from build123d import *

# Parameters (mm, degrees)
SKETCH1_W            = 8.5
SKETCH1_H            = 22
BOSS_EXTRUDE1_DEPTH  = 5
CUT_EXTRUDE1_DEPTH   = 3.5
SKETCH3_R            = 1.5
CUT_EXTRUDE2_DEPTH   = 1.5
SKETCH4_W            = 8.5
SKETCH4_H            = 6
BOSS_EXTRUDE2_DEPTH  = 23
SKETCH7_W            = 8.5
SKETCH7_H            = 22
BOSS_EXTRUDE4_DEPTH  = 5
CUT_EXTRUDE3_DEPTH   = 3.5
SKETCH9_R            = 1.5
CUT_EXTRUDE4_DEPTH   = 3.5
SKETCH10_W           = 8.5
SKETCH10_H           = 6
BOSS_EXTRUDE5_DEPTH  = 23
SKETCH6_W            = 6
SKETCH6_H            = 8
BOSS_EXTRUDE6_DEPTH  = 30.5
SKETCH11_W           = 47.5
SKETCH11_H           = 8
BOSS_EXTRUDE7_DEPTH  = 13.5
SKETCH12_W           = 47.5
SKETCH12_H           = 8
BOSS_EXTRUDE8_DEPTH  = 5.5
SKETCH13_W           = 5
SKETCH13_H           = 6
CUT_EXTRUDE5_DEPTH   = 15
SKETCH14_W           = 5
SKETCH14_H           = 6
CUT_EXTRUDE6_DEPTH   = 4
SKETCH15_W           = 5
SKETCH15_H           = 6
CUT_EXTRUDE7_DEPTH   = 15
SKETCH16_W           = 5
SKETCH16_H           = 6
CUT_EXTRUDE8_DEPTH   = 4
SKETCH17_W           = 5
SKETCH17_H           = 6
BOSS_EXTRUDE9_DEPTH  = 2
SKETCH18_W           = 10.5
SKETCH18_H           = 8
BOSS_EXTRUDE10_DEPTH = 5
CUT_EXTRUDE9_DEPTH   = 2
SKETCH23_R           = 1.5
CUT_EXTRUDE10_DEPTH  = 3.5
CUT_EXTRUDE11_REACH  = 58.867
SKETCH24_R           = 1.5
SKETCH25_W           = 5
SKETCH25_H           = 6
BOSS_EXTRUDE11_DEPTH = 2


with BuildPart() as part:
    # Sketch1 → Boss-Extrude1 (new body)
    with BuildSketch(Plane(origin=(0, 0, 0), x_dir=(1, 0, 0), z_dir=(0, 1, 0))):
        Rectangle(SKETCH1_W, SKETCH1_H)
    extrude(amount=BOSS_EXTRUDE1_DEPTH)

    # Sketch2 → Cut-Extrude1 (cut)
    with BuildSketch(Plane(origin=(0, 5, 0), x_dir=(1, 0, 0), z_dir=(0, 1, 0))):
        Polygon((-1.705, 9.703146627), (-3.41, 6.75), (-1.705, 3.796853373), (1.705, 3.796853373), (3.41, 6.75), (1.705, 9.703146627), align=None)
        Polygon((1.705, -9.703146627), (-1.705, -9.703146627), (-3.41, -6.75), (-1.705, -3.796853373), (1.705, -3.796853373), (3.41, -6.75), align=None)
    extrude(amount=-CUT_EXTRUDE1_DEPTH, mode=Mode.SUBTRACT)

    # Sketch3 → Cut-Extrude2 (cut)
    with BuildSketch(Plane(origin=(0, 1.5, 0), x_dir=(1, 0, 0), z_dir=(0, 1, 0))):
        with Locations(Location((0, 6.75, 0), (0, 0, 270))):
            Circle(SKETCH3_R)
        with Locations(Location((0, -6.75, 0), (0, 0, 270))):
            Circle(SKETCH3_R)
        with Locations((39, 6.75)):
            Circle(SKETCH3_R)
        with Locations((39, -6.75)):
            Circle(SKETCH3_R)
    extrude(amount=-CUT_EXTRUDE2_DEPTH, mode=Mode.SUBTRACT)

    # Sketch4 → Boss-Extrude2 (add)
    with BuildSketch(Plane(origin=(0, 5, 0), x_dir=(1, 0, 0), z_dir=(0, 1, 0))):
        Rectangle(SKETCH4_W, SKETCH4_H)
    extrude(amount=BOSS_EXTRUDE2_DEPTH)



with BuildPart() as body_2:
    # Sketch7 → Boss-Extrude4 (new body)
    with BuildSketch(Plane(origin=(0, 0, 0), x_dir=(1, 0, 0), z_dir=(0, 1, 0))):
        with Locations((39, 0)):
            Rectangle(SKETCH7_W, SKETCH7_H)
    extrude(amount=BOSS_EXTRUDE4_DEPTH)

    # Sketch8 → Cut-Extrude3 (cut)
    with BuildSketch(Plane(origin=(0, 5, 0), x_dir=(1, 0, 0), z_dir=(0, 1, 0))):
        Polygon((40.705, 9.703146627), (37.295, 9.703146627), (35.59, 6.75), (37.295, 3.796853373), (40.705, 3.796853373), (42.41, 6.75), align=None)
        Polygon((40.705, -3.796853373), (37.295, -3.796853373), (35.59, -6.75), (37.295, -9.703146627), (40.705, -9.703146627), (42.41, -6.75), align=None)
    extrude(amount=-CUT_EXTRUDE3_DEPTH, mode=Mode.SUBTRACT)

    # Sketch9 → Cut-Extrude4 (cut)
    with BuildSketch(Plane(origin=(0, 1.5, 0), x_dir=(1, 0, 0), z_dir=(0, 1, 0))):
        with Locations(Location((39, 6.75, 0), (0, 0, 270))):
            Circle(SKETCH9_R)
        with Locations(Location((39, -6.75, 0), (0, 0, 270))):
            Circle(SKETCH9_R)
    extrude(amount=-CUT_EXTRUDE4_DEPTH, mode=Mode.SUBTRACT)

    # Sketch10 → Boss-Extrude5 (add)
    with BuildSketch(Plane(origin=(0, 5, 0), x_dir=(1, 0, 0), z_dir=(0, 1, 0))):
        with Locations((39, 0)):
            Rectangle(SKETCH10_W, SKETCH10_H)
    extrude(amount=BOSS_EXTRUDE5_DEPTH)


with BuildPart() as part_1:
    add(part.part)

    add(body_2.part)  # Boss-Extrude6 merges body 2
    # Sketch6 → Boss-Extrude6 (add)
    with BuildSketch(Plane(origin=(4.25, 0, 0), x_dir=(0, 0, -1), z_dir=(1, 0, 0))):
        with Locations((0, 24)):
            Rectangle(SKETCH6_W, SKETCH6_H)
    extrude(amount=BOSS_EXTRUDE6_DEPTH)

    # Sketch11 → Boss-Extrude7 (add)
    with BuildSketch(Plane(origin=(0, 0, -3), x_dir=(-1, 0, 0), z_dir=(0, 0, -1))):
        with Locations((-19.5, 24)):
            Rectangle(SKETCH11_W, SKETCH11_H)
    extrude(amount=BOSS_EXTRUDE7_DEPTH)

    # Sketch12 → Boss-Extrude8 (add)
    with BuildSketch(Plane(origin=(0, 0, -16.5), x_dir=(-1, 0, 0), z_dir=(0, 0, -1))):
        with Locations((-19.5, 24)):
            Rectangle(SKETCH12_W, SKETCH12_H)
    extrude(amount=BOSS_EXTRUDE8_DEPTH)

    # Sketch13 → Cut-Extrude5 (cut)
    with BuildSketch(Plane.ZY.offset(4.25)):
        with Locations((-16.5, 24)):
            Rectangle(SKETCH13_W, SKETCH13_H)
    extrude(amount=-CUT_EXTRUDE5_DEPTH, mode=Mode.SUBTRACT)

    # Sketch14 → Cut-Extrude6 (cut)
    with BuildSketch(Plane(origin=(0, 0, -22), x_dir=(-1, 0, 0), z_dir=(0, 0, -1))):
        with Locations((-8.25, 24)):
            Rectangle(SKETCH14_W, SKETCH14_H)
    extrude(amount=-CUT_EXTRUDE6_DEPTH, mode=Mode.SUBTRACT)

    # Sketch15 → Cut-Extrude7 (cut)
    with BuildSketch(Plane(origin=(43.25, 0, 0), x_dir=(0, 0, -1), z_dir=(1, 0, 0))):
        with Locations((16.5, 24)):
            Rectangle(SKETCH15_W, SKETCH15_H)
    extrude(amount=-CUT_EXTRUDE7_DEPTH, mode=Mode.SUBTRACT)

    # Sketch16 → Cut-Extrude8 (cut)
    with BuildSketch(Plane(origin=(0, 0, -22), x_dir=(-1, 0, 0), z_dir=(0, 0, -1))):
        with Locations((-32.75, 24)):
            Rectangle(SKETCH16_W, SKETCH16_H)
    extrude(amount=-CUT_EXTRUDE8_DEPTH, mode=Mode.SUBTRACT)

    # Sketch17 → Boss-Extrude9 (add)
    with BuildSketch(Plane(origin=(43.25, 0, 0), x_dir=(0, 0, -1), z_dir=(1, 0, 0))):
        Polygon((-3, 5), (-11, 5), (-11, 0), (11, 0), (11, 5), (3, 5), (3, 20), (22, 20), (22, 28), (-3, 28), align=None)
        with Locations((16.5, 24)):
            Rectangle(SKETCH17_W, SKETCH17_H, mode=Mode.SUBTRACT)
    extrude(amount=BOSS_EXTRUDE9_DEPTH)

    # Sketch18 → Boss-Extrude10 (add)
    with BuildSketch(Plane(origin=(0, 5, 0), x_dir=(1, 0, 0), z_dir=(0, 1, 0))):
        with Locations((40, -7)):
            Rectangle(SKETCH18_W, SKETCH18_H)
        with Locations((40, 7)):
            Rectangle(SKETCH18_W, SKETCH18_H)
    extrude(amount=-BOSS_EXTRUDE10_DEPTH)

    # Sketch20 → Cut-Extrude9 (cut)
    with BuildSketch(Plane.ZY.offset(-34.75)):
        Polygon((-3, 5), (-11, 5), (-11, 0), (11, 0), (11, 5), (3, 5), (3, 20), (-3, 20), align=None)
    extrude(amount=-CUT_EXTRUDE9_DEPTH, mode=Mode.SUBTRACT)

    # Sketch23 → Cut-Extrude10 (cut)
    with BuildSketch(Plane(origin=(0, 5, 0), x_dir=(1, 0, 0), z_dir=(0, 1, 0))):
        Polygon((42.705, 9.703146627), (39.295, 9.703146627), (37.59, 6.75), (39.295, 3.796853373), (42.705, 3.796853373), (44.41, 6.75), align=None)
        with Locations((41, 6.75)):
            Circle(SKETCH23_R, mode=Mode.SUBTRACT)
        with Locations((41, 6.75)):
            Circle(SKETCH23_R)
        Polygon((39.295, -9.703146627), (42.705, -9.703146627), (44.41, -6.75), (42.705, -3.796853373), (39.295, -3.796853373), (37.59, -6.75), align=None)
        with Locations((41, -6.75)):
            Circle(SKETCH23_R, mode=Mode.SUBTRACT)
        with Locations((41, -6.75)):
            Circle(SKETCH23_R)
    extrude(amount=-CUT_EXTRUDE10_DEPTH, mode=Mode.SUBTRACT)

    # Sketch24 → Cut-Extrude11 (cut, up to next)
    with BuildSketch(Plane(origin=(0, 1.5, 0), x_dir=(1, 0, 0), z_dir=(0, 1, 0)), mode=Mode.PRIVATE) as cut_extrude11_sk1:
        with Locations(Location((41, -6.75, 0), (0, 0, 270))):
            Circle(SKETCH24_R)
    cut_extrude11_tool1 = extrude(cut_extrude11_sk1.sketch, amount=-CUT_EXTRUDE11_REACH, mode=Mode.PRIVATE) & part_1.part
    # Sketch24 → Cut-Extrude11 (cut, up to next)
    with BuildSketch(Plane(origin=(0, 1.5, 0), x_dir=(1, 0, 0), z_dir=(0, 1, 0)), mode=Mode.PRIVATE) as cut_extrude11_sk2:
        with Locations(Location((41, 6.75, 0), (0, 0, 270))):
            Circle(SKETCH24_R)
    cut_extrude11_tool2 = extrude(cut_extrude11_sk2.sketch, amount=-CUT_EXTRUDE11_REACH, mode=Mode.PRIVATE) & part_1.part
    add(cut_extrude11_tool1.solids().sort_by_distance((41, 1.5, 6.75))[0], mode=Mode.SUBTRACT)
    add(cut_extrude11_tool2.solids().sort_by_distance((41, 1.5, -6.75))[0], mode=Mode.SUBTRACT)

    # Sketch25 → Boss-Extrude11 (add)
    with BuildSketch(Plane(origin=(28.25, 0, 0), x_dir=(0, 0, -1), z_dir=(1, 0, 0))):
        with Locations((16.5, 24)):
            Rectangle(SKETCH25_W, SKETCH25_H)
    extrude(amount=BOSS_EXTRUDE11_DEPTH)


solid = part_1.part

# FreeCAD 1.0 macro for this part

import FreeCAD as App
import Part
import Sketcher

V = App.Vector
Q = App.Units.Quantity

doc = App.newDocument("Part")
body = doc.addObject("PartDesign::Body", "Body")

sketch1 = body.newObject("Sketcher::SketchObject", "Sketch")
sketch1.AttachmentSupport = (doc.getObject("XZ_Plane"), [""])
sketch1.MapMode = "FlatFace"
sketch1.addGeometry([
    Part.LineSegment(V(-4.25, -11, 0), V(-4.25, 11, 0)),
    Part.LineSegment(V(-4.25, 11, 0), V(4.25, 11, 0)),
    Part.LineSegment(V(4.25, 11, 0), V(4.25, -11, 0)),
    Part.LineSegment(V(4.25, -11, 0), V(-4.25, -11, 0)),
], False)
sketch1.addConstraint([
    Sketcher.Constraint("Coincident", 0, 2, 1, 1),
    Sketcher.Constraint("Coincident", 1, 2, 2, 1),
    Sketcher.Constraint("Coincident", 2, 2, 3, 1),
    Sketcher.Constraint("Coincident", 3, 2, 0, 1),
    Sketcher.Constraint("Vertical", 0),
    Sketcher.Constraint("Horizontal", 1),
    Sketcher.Constraint("Vertical", 2),
    Sketcher.Constraint("Horizontal", 3),
    Sketcher.Constraint("Symmetric", 0, 2, 2, 2, -1, 1),
    Sketcher.Constraint("DistanceY", 0, 1, 0, 2, Q("22 mm")),
    Sketcher.Constraint("DistanceX", 1, 1, 1, 2, Q("8.5 mm")),
])
pad1 = body.newObject("PartDesign::Pad", "Pad")
pad1.Profile = sketch1
pad1.Length = 5
pad1.Reversed = True

sketch2 = body.newObject("Sketcher::SketchObject", "Sketch001")
sketch2.AttachmentSupport = (doc.getObject("XZ_Plane"), [""])
sketch2.MapMode = "FlatFace"
sketch2.AttachmentOffset = App.Placement(V(0, 0, -5), App.Rotation())
sketch2.addGeometry([
    Part.LineSegment(V(-1.705, -9.703147, 0), V(-3.41, -6.75, 0)),
    Part.LineSegment(V(-3.41, -6.75, 0), V(-1.705, -3.796853, 0)),
    Part.LineSegment(V(-1.705, -3.796853, 0), V(1.705, -3.796853, 0)),
    Part.LineSegment(V(1.705, -3.796853, 0), V(3.41, -6.75, 0)),
    Part.LineSegment(V(3.41, -6.75, 0), V(1.705, -9.703147, 0)),
    Part.LineSegment(V(1.705, -9.703147, 0), V(-1.705, -9.703147, 0)),
    Part.LineSegment(V(-1.705, 9.703147, 0), V(1.705, 9.703147, 0)),
    Part.LineSegment(V(1.705, 9.703147, 0), V(3.41, 6.75, 0)),
    Part.LineSegment(V(3.41, 6.75, 0), V(1.705, 3.796853, 0)),
    Part.LineSegment(V(1.705, 3.796853, 0), V(-1.705, 3.796853, 0)),
    Part.LineSegment(V(-1.705, 3.796853, 0), V(-3.41, 6.75, 0)),
    Part.LineSegment(V(-3.41, 6.75, 0), V(-1.705, 9.703147, 0)),
], False)
sketch2.addConstraint([
    Sketcher.Constraint("Coincident", 0, 2, 1, 1),
    Sketcher.Constraint("Coincident", 1, 2, 2, 1),
    Sketcher.Constraint("Coincident", 2, 2, 3, 1),
    Sketcher.Constraint("Coincident", 3, 2, 4, 1),
    Sketcher.Constraint("Coincident", 4, 2, 5, 1),
    Sketcher.Constraint("Coincident", 5, 2, 0, 1),
    Sketcher.Constraint("Coincident", 6, 2, 7, 1),
    Sketcher.Constraint("Coincident", 7, 2, 8, 1),
    Sketcher.Constraint("Coincident", 8, 2, 9, 1),
    Sketcher.Constraint("Coincident", 9, 2, 10, 1),
    Sketcher.Constraint("Coincident", 10, 2, 11, 1),
    Sketcher.Constraint("Coincident", 11, 2, 6, 1),
    Sketcher.Constraint("Horizontal", 2),
    Sketcher.Constraint("Horizontal", 5),
    Sketcher.Constraint("Horizontal", 6),
    Sketcher.Constraint("Horizontal", 9),
    Sketcher.Constraint("Symmetric", 5, 2, 6, 2, -1, 1),
    Sketcher.Constraint("Symmetric", 0, 2, 7, 2, -1, 1),
    Sketcher.Constraint("Symmetric", 1, 2, 8, 2, -1, 1),
    Sketcher.Constraint("Symmetric", 3, 2, 10, 2, -1, 1),
    Sketcher.Constraint("Symmetric", 0, 2, 3, 2, -2),
    Sketcher.Constraint("Parallel", 0, 3),
    Sketcher.Constraint("Parallel", 1, 4),
    Sketcher.Constraint("Parallel", 7, 10),
    Sketcher.Constraint("Parallel", 8, 11),
    Sketcher.Constraint("Vertical", 2, 2, 4, 2),
    Sketcher.Constraint("Vertical", 1, 2, 5, 2),
    Sketcher.Constraint("Angle", 0, Q("120 deg")),
    Sketcher.Constraint("DistanceX", 2, 1, 2, 2, Q("3.41 mm")),
    Sketcher.Constraint("DistanceY", 2, 2, 6, 2, Q("13.5 mm")),
    Sketcher.Constraint("Distance", 0, Q("3.41 mm")),
])
pocket1 = body.newObject("PartDesign::Pocket", "Pocket")
pocket1.Profile = sketch2
pocket1.Length = 3.5
pocket1.Reversed = True

sketch3 = body.newObject("Sketcher::SketchObject", "Sketch002")
sketch3.AttachmentSupport = (doc.getObject("XZ_Plane"), [""])
sketch3.MapMode = "FlatFace"
sketch3.AttachmentOffset = App.Placement(V(0, 0, -1.5), App.Rotation())
sketch3.addGeometry([
    Part.Circle(V(0, -6.75, 0), V(0, 0, 1), 1.5),
    Part.Circle(V(0, 6.75, 0), V(0, 0, 1), 1.5),
    Part.Circle(V(39, -6.75, 0), V(0, 0, 1), 1.5),
    Part.Circle(V(39, 6.75, 0), V(0, 0, 1), 1.5),
], False)
sketch3.addConstraint([
    Sketcher.Constraint("Equal", 0, 1),
    Sketcher.Constraint("Equal", 1, 2),
    Sketcher.Constraint("Equal", 2, 3),
    Sketcher.Constraint("Symmetric", 0, 3, 1, 3, -1, 1),
    Sketcher.Constraint("Symmetric", 2, 3, 3, 3, -1),
    Sketcher.Constraint("PointOnObject", 0, 3, -2),
    Sketcher.Constraint("Horizontal", 0, 3, 2, 3),
    Sketcher.Constraint("Diameter", 0, Q("3 mm")),
    Sketcher.Constraint("DistanceX", -1, 1, 2, 3, Q("39 mm")),
    Sketcher.Constraint("DistanceY", 0, 3, 1, 3, Q("13.5 mm")),
])
pocket2 = body.newObject("PartDesign::Pocket", "Pocket001")
pocket2.Profile = sketch3
pocket2.Length = 1.5
pocket2.Reversed = True

sketch4 = body.newObject("Sketcher::SketchObject", "Sketch003")
sketch4.AttachmentSupport = (doc.getObject("XZ_Plane"), [""])
sketch4.MapMode = "FlatFace"
sketch4.AttachmentOffset = App.Placement(V(0, 0, -5), App.Rotation())
sketch4.addGeometry([
    Part.LineSegment(V(-4.25, -3, 0), V(-4.25, 3, 0)),
    Part.LineSegment(V(-4.25, 3, 0), V(4.25, 3, 0)),
    Part.LineSegment(V(4.25, 3, 0), V(4.25, -3, 0)),
    Part.LineSegment(V(4.25, -3, 0), V(-4.25, -3, 0)),
], False)
sketch4.addConstraint([
    Sketcher.Constraint("Coincident", 0, 2, 1, 1),
    Sketcher.Constraint("Coincident", 1, 2, 2, 1),
    Sketcher.Constraint("Coincident", 2, 2, 3, 1),
    Sketcher.Constraint("Coincident", 3, 2, 0, 1),
    Sketcher.Constraint("Vertical", 0),
    Sketcher.Constraint("Horizontal", 1),
    Sketcher.Constraint("Vertical", 2),
    Sketcher.Constraint("Horizontal", 3),
    Sketcher.Constraint("Symmetric", 0, 2, 2, 2, -1, 1),
    Sketcher.Constraint("DistanceY", 0, 1, 0, 2, Q("6 mm")),
    Sketcher.Constraint("DistanceX", 1, 1, 1, 2, Q("8.5 mm")),
])
pad2 = body.newObject("PartDesign::Pad", "Pad001")
pad2.Profile = sketch4
pad2.Length = 23
pad2.Reversed = True
body2 = doc.addObject("PartDesign::Body", "Body001")

sketch5 = body2.newObject("Sketcher::SketchObject", "Sketch004")
sketch5.AttachmentSupport = (doc.getObject("XZ_Plane001"), [""])
sketch5.MapMode = "FlatFace"
sketch5.addGeometry([
    Part.LineSegment(V(34.75, -11, 0), V(34.75, 11, 0)),
    Part.LineSegment(V(34.75, 11, 0), V(43.25, 11, 0)),
    Part.LineSegment(V(43.25, 11, 0), V(43.25, -11, 0)),
    Part.LineSegment(V(43.25, -11, 0), V(34.75, -11, 0)),
], False)
sketch5.addConstraint([
    Sketcher.Constraint("Coincident", 0, 2, 1, 1),
    Sketcher.Constraint("Coincident", 1, 2, 2, 1),
    Sketcher.Constraint("Coincident", 2, 2, 3, 1),
    Sketcher.Constraint("Coincident", 3, 2, 0, 1),
    Sketcher.Constraint("Vertical", 0),
    Sketcher.Constraint("Horizontal", 1),
    Sketcher.Constraint("Vertical", 2),
    Sketcher.Constraint("Horizontal", 3),
    Sketcher.Constraint("DistanceY", 0, 1, 0, 2, Q("22 mm")),
    Sketcher.Constraint("DistanceX", 1, 1, 1, 2, Q("8.5 mm")),
    Sketcher.Constraint("DistanceY", -1, 1, 0, 2, Q("11 mm")),
    Sketcher.Constraint("DistanceX", -1, 1, 0, 2, Q("34.75 mm")),
])
pad3 = body2.newObject("PartDesign::Pad", "Pad002")
pad3.Profile = sketch5
pad3.Length = 5
pad3.Reversed = True

sketch6 = body2.newObject("Sketcher::SketchObject", "Sketch005")
sketch6.AttachmentSupport = (doc.getObject("XZ_Plane001"), [""])
sketch6.MapMode = "FlatFace"
sketch6.AttachmentOffset = App.Placement(V(0, 0, -5), App.Rotation())
sketch6.addGeometry([
    Part.LineSegment(V(40.705, -9.703147, 0), V(37.295, -9.703147, 0)),
    Part.LineSegment(V(37.295, -9.703147, 0), V(35.59, -6.75, 0)),
    Part.LineSegment(V(35.59, -6.75, 0), V(37.295, -3.796853, 0)),
    Part.LineSegment(V(37.295, -3.796853, 0), V(40.705, -3.796853, 0)),
    Part.LineSegment(V(40.705, -3.796853, 0), V(42.41, -6.75, 0)),
    Part.LineSegment(V(42.41, -6.75, 0), V(40.705, -9.703147, 0)),
    Part.LineSegment(V(40.705, 3.796853, 0), V(37.295, 3.796853, 0)),
    Part.LineSegment(V(37.295, 3.796853, 0), V(35.59, 6.75, 0)),
    Part.LineSegment(V(35.59, 6.75, 0), V(37.295, 9.703147, 0)),
    Part.LineSegment(V(37.295, 9.703147, 0), V(40.705, 9.703147, 0)),
    Part.LineSegment(V(40.705, 9.703147, 0), V(42.41, 6.75, 0)),
    Part.LineSegment(V(42.41, 6.75, 0), V(40.705, 3.796853, 0)),
], False)
sketch6.addConstraint([
    Sketcher.Constraint("Coincident", 0, 2, 1, 1),
    Sketcher.Constraint("Coincident", 1, 2, 2, 1),
    Sketcher.Constraint("Coincident", 2, 2, 3, 1),
    Sketcher.Constraint("Coincident", 3, 2, 4, 1),
    Sketcher.Constraint("Coincident", 4, 2, 5, 1),
    Sketcher.Constraint("Coincident", 5, 2, 0, 1),
    Sketcher.Constraint("Coincident", 6, 2, 7, 1),
    Sketcher.Constraint("Coincident", 7, 2, 8, 1),
    Sketcher.Constraint("Coincident", 8, 2, 9, 1),
    Sketcher.Constraint("Coincident", 9, 2, 10, 1),
    Sketcher.Constraint("Coincident", 10, 2, 11, 1),
    Sketcher.Constraint("Coincident", 11, 2, 6, 1),
    Sketcher.Constraint("Horizontal", 0),
    Sketcher.Constraint("Horizontal", 3),
    Sketcher.Constraint("Horizontal", 6),
    Sketcher.Constraint("Horizontal", 9),
    Sketcher.Constraint("Symmetric", 2, 2, 6, 2, -1),
    Sketcher.Constraint("Symmetric", 1, 2, 7, 2, -1),
    Sketcher.Constraint("Symmetric", 0, 2, 8, 2, -1),
    Sketcher.Constraint("Symmetric", 4, 2, 10, 2, -1),
    Sketcher.Constraint("Parallel", 1, 4),
    Sketcher.Constraint("Parallel", 2, 5),
    Sketcher.Constraint("Parallel", 4, 7),
    Sketcher.Constraint("Parallel", 7, 10),
    Sketcher.Constraint("Parallel", 8, 11),
    Sketcher.Constraint("Horizontal", 1, 2, 4, 2),
    Sketcher.Constraint("Vertical", 0, 2, 2, 2),
    Sketcher.Constraint("Angle", 1, Q("120 deg")),
    Sketcher.Constraint("DistanceX", 0, 2, 0, 1, Q("3.41 mm")),
    Sketcher.Constraint("DistanceY", 0, 2, 6, 2, Q("13.5 mm")),
    Sketcher.Constraint("Distance", 1, Q("3.41 mm")),
    Sketcher.Constraint("DistanceX", -1, 1, 1, 2, Q("35.59 mm")),
])
pocket3 = body2.newObject("PartDesign::Pocket", "Pocket002")
pocket3.Profile = sketch6
pocket3.Length = 3.5
pocket3.Reversed = True

sketch7 = body2.newObject("Sketcher::SketchObject", "Sketch006")
sketch7.AttachmentSupport = (doc.getObject("XZ_Plane001"), [""])
sketch7.MapMode = "FlatFace"
sketch7.AttachmentOffset = App.Placement(V(0, 0, -1.5), App.Rotation())
sketch7.addGeometry([
    Part.Circle(V(39, -6.75, 0), V(0, 0, 1), 1.5),
    Part.Circle(V(39, 6.75, 0), V(0, 0, 1), 1.5),
], False)
sketch7.addConstraint([
    Sketcher.Constraint("Equal", 0, 1),
    Sketcher.Constraint("Symmetric", 0, 3, 1, 3, -1),
    Sketcher.Constraint("Diameter", 0, Q("3 mm")),
    Sketcher.Constraint("DistanceX", -1, 1, 0, 3, Q("39 mm")),
    Sketcher.Constraint("DistanceY", 0, 3, 1, 3, Q("13.5 mm")),
])
pocket4 = body2.newObject("PartDesign::Pocket", "Pocket003")
pocket4.Profile = sketch7
pocket4.Length = 3.5
pocket4.Reversed = True

sketch8 = body2.newObject("Sketcher::SketchObject", "Sketch007")
sketch8.AttachmentSupport = (doc.getObject("XZ_Plane001"), [""])
sketch8.MapMode = "FlatFace"
sketch8.AttachmentOffset = App.Placement(V(0, 0, -5), App.Rotation())
sketch8.addGeometry([
    Part.LineSegment(V(34.75, -3, 0), V(34.75, 3, 0)),
    Part.LineSegment(V(34.75, 3, 0), V(43.25, 3, 0)),
    Part.LineSegment(V(43.25, 3, 0), V(43.25, -3, 0)),
    Part.LineSegment(V(43.25, -3, 0), V(34.75, -3, 0)),
], False)
sketch8.addConstraint([
    Sketcher.Constraint("Coincident", 0, 2, 1, 1),
    Sketcher.Constraint("Coincident", 1, 2, 2, 1),
    Sketcher.Constraint("Coincident", 2, 2, 3, 1),
    Sketcher.Constraint("Coincident", 3, 2, 0, 1),
    Sketcher.Constraint("Vertical", 0),
    Sketcher.Constraint("Horizontal", 1),
    Sketcher.Constraint("Vertical", 2),
    Sketcher.Constraint("Horizontal", 3),
    Sketcher.Constraint("DistanceY", 0, 1, 0, 2, Q("6 mm")),
    Sketcher.Constraint("DistanceX", 1, 1, 1, 2, Q("8.5 mm")),
    Sketcher.Constraint("DistanceY", -1, 1, 0, 2, Q("3 mm")),
    Sketcher.Constraint("DistanceX", -1, 1, 0, 2, Q("34.75 mm")),
])
pad4 = body2.newObject("PartDesign::Pad", "Pad003")
pad4.Profile = sketch8
pad4.Length = 23
pad4.Reversed = True
body.AllowCompound = True
doc.recompute()

boolean = body.newObject("PartDesign::Boolean", "Boolean")
boolean.Type = "Fuse"
boolean.addObjects([body2])

sketch9 = body.newObject("Sketcher::SketchObject", "Sketch008")
sketch9.AttachmentSupport = (doc.getObject("YZ_Plane"), [""])
sketch9.MapMode = "FlatFace"
sketch9.AttachmentOffset = App.Placement(V(0, 0, 4.25), App.Rotation())
sketch9.addGeometry([
    Part.LineSegment(V(28, 3, 0), V(20, 3, 0)),
    Part.LineSegment(V(20, 3, 0), V(20, -3, 0)),
    Part.LineSegment(V(20, -3, 0), V(28, -3, 0)),
    Part.LineSegment(V(28, -3, 0), V(28, 3, 0)),
], False)
sketch9.addConstraint([
    Sketcher.Constraint("Coincident", 0, 2, 1, 1),
    Sketcher.Constraint("Coincident", 1, 2, 2, 1),
    Sketcher.Constraint("Coincident", 2, 2, 3, 1),
    Sketcher.Constraint("Coincident", 3, 2, 0, 1),
    Sketcher.Constraint("Horizontal", 0),
    Sketcher.Constraint("Vertical", 1),
    Sketcher.Constraint("Horizontal", 2),
    Sketcher.Constraint("Vertical", 3),
    Sketcher.Constraint("DistanceX", 0, 2, 0, 1, Q("8 mm")),
    Sketcher.Constraint("DistanceY", 1, 2, 1, 1, Q("6 mm")),
    Sketcher.Constraint("DistanceX", -1, 1, 0, 2, Q("20 mm")),
    Sketcher.Constraint("DistanceY", -1, 1, 0, 2, Q("3 mm")),
])
pad5 = body.newObject("PartDesign::Pad", "Pad004")
pad5.Profile = sketch9
pad5.Length = 30.5

sketch10 = body.newObject("Sketcher::SketchObject", "Sketch009")
sketch10.AttachmentSupport = (doc.getObject("XY_Plane"), [""])
sketch10.MapMode = "FlatFace"
sketch10.AttachmentOffset = App.Placement(V(0, 0, -3), App.Rotation())
sketch10.addGeometry([
    Part.LineSegment(V(43.25, 28, 0), V(43.25, 20, 0)),
    Part.LineSegment(V(43.25, 20, 0), V(-4.25, 20, 0)),
    Part.LineSegment(V(-4.25, 20, 0), V(-4.25, 28, 0)),
    Part.LineSegment(V(-4.25, 28, 0), V(43.25, 28, 0)),
], False)
sketch10.addConstraint([
    Sketcher.Constraint("Coincident", 0, 2, 1, 1),
    Sketcher.Constraint("Coincident", 1, 2, 2, 1),
    Sketcher.Constraint("Coincident", 2, 2, 3, 1),
    Sketcher.Constraint("Coincident", 3, 2, 0, 1),
    Sketcher.Constraint("Vertical", 0),
    Sketcher.Constraint("Horizontal", 1),
    Sketcher.Constraint("Vertical", 2),
    Sketcher.Constraint("Horizontal", 3),
    Sketcher.Constraint("DistanceY", 0, 2, 0, 1, Q("8 mm")),
    Sketcher.Constraint("DistanceX", 1, 2, 1, 1, Q("47.5 mm")),
    Sketcher.Constraint("DistanceY", -1, 1, 0, 2, Q("20 mm")),
    Sketcher.Constraint("DistanceX", -1, 1, 0, 2, Q("43.25 mm")),
])
pad6 = body.newObject("PartDesign::Pad", "Pad005")
pad6.Profile = sketch10
pad6.Length = 13.5
pad6.Reversed = True

sketch11 = body.newObject("Sketcher::SketchObject", "Sketch010")
sketch11.AttachmentSupport = (doc.getObject("XY_Plane"), [""])
sketch11.MapMode = "FlatFace"
sketch11.AttachmentOffset = App.Placement(V(0, 0, -16.5), App.Rotation())
sketch11.addGeometry([
    Part.LineSegment(V(43.25, 28, 0), V(43.25, 20, 0)),
    Part.LineSegment(V(43.25, 20, 0), V(-4.25, 20, 0)),
    Part.LineSegment(V(-4.25, 20, 0), V(-4.25, 28, 0)),
    Part.LineSegment(V(-4.25, 28, 0), V(43.25, 28, 0)),
], False)
sketch11.addConstraint([
    Sketcher.Constraint("Coincident", 0, 2, 1, 1),
    Sketcher.Constraint("Coincident", 1, 2, 2, 1),
    Sketcher.Constraint("Coincident", 2, 2, 3, 1),
    Sketcher.Constraint("Coincident", 3, 2, 0, 1),
    Sketcher.Constraint("Vertical", 0),
    Sketcher.Constraint("Horizontal", 1),
    Sketcher.Constraint("Vertical", 2),
    Sketcher.Constraint("Horizontal", 3),
    Sketcher.Constraint("DistanceY", 0, 2, 0, 1, Q("8 mm")),
    Sketcher.Constraint("DistanceX", 1, 2, 1, 1, Q("47.5 mm")),
    Sketcher.Constraint("DistanceY", -1, 1, 0, 2, Q("20 mm")),
    Sketcher.Constraint("DistanceX", -1, 1, 0, 2, Q("43.25 mm")),
])
pad7 = body.newObject("PartDesign::Pad", "Pad006")
pad7.Profile = sketch11
pad7.Length = 5.5
pad7.Reversed = True

sketch12 = body.newObject("Sketcher::SketchObject", "Sketch011")
sketch12.AttachmentSupport = (doc.getObject("YZ_Plane"), [""])
sketch12.MapMode = "FlatFace"
sketch12.AttachmentOffset = App.Placement(V(0, 0, -4.25), App.Rotation())
sketch12.addGeometry([
    Part.LineSegment(V(27, -19, 0), V(21, -19, 0)),
    Part.LineSegment(V(21, -19, 0), V(21, -14, 0)),
    Part.LineSegment(V(21, -14, 0), V(27, -14, 0)),
    Part.LineSegment(V(27, -14, 0), V(27, -19, 0)),
], False)
sketch12.addConstraint([
    Sketcher.Constraint("Coincident", 0, 2, 1, 1),
    Sketcher.Constraint("Coincident", 1, 2, 2, 1),
    Sketcher.Constraint("Coincident", 2, 2, 3, 1),
    Sketcher.Constraint("Coincident", 3, 2, 0, 1),
    Sketcher.Constraint("Horizontal", 0),
    Sketcher.Constraint("Vertical", 1),
    Sketcher.Constraint("Horizontal", 2),
    Sketcher.Constraint("Vertical", 3),
    Sketcher.Constraint("DistanceX", 0, 2, 0, 1, Q("6 mm")),
    Sketcher.Constraint("DistanceY", 1, 1, 1, 2, Q("5 mm")),
    Sketcher.Constraint("DistanceX", -1, 1, 0, 2, Q("21 mm")),
    Sketcher.Constraint("DistanceY", 0, 2, -1, 1, Q("19 mm")),
])
pocket5 = body.newObject("PartDesign::Pocket", "Pocket004")
pocket5.Profile = sketch12
pocket5.Length = 15
pocket5.Reversed = True

sketch13 = body.newObject("Sketcher::SketchObject", "Sketch012")
sketch13.AttachmentSupport = (doc.getObject("XY_Plane"), [""])
sketch13.MapMode = "FlatFace"
sketch13.AttachmentOffset = App.Placement(V(0, 0, -22), App.Rotation())
sketch13.addGeometry([
    Part.LineSegment(V(10.75, 27, 0), V(10.75, 21, 0)),
    Part.LineSegment(V(10.75, 21, 0), V(5.75, 21, 0)),
    Part.LineSegment(V(5.75, 21, 0), V(5.75, 27, 0)),
    Part.LineSegment(V(5.75, 27, 0), V(10.75, 27, 0)),
], False)
sketch13.addConstraint([
    Sketcher.Constraint("Coincident", 0, 2, 1, 1),
    Sketcher.Constraint("Coincident", 1, 2, 2, 1),
    Sketcher.Constraint("Coincident", 2, 2, 3, 1),
    Sketcher.Constraint("Coincident", 3, 2, 0, 1),
    Sketcher.Constraint("Vertical", 0),
    Sketcher.Constraint("Horizontal", 1),
    Sketcher.Constraint("Vertical", 2),
    Sketcher.Constraint("Horizontal", 3),
    Sketcher.Constraint("DistanceX", 1, 2, 1, 1, Q("5 mm")),
    Sketcher.Constraint("DistanceY", 0, 2, 0, 1, Q("6 mm")),
    Sketcher.Constraint("DistanceY", -1, 1, 0, 2, Q("21 mm")),
    Sketcher.Constraint("DistanceX", -1, 1, 0, 2, Q("10.75 mm")),
])
pocket6 = body.newObject("PartDesign::Pocket", "Pocket005")
pocket6.Profile = sketch13
pocket6.Length = 4
pocket6.Reversed = True

sketch14 = body.newObject("Sketcher::SketchObject", "Sketch013")
sketch14.AttachmentSupport = (doc.getObject("YZ_Plane"), [""])
sketch14.MapMode = "FlatFace"
sketch14.AttachmentOffset = App.Placement(V(0, 0, 43.25), App.Rotation())
sketch14.addGeometry([
    Part.LineSegment(V(27, -14, 0), V(21, -14, 0)),
    Part.LineSegment(V(21, -14, 0), V(21, -19, 0)),
    Part.LineSegment(V(21, -19, 0), V(27, -19, 0)),
    Part.LineSegment(V(27, -19, 0), V(27, -14, 0)),
], False)
sketch14.addConstraint([
    Sketcher.Constraint("Coincident", 0, 2, 1, 1),
    Sketcher.Constraint("Coincident", 1, 2, 2, 1),
    Sketcher.Constraint("Coincident", 2, 2, 3, 1),
    Sketcher.Constraint("Coincident", 3, 2, 0, 1),
    Sketcher.Constraint("Horizontal", 0),
    Sketcher.Constraint("Vertical", 1),
    Sketcher.Constraint("Horizontal", 2),
    Sketcher.Constraint("Vertical", 3),
    Sketcher.Constraint("DistanceX", 0, 2, 0, 1, Q("6 mm")),
    Sketcher.Constraint("DistanceY", 1, 2, 1, 1, Q("5 mm")),
    Sketcher.Constraint("DistanceX", -1, 1, 0, 2, Q("21 mm")),
    Sketcher.Constraint("DistanceY", 0, 2, -1, 1, Q("14 mm")),
])
pocket7 = body.newObject("PartDesign::Pocket", "Pocket006")
pocket7.Profile = sketch14
pocket7.Length = 15

sketch15 = body.newObject("Sketcher::SketchObject", "Sketch014")
sketch15.AttachmentSupport = (doc.getObject("XY_Plane"), [""])
sketch15.MapMode = "FlatFace"
sketch15.AttachmentOffset = App.Placement(V(0, 0, -22), App.Rotation())
sketch15.addGeometry([
    Part.LineSegment(V(35.25, 27, 0), V(35.25, 21, 0)),
    Part.LineSegment(V(35.25, 21, 0), V(30.25, 21, 0)),
    Part.LineSegment(V(30.25, 21, 0), V(30.25, 27, 0)),
    Part.LineSegment(V(30.25, 27, 0), V(35.25, 27, 0)),
], False)
sketch15.addConstraint([
    Sketcher.Constraint("Coincident", 0, 2, 1, 1),
    Sketcher.Constraint("Coincident", 1, 2, 2, 1),
    Sketcher.Constraint("Coincident", 2, 2, 3, 1),
    Sketcher.Constraint("Coincident", 3, 2, 0, 1),
    Sketcher.Constraint("Vertical", 0),
    Sketcher.Constraint("Horizontal", 1),
    Sketcher.Constraint("Vertical", 2),
    Sketcher.Constraint("Horizontal", 3),
    Sketcher.Constraint("DistanceX", 1, 2, 1, 1, Q("5 mm")),
    Sketcher.Constraint("DistanceY", 0, 2, 0, 1, Q("6 mm")),
    Sketcher.Constraint("DistanceY", -1, 1, 0, 2, Q("21 mm")),
    Sketcher.Constraint("DistanceX", -1, 1, 0, 2, Q("35.25 mm")),
])
pocket8 = body.newObject("PartDesign::Pocket", "Pocket007")
pocket8.Profile = sketch15
pocket8.Length = 4
pocket8.Reversed = True

sketch16 = body.newObject("Sketcher::SketchObject", "Sketch015")
sketch16.AttachmentSupport = (doc.getObject("YZ_Plane"), [""])
sketch16.MapMode = "FlatFace"
sketch16.AttachmentOffset = App.Placement(V(0, 0, 43.25), App.Rotation())
sketch16.addGeometry([
    Part.LineSegment(V(5, 3, 0), V(5, 11, 0)),
    Part.LineSegment(V(5, 11, 0), V(0, 11, 0)),
    Part.LineSegment(V(0, 11, 0), V(0, -11, 0)),
    Part.LineSegment(V(0, -11, 0), V(5, -11, 0)),
    Part.LineSegment(V(5, -11, 0), V(5, -3, 0)),
    Part.LineSegment(V(5, -3, 0), V(20, -3, 0)),
    Part.LineSegment(V(20, -3, 0), V(20, -22, 0)),
    Part.LineSegment(V(20, -22, 0), V(28, -22, 0)),
    Part.LineSegment(V(28, -22, 0), V(28, 3, 0)),
    Part.LineSegment(V(28, 3, 0), V(5, 3, 0)),
    Part.LineSegment(V(21, -19, 0), V(21, -14, 0)),
    Part.LineSegment(V(21, -14, 0), V(27, -14, 0)),
    Part.LineSegment(V(27, -14, 0), V(27, -19, 0)),
    Part.LineSegment(V(27, -19, 0), V(21, -19, 0)),
], False)
sketch16.addConstraint([
    Sketcher.Constraint("Coincident", 0, 2, 1, 1),
    Sketcher.Constraint("Coincident", 1, 2, 2, 1),
    Sketcher.Constraint("Coincident", 2, 2, 3, 1),
    Sketcher.Constraint("Coincident", 3, 2, 4, 1),
    Sketcher.Constraint("Coincident", 4, 2, 5, 1),
    Sketcher.Constraint("Coincident", 5, 2, 6, 1),
    Sketcher.Constraint("Coincident", 6, 2, 7, 1),
    Sketcher.Constraint("Coincident", 7, 2, 8, 1),
    Sketcher.Constraint("Coincident", 8, 2, 9, 1),
    Sketcher.Constraint("Coincident", 9, 2, 0, 1),
    Sketcher.Constraint("Coincident", 10, 2, 11, 1),
    Sketcher.Constraint("Coincident", 11, 2, 12, 1),
    Sketcher.Constraint("Coincident", 12, 2, 13, 1),
    Sketcher.Constraint("Coincident", 13, 2, 10, 1),
    Sketcher.Constraint("Vertical", 0),
    Sketcher.Constraint("Horizontal", 1),
    Sketcher.Constraint("Vertical", 2),
    Sketcher.Constraint("Horizontal", 3),
    Sketcher.Constraint("Vertical", 4),
    Sketcher.Constraint("Horizontal", 5),
    Sketcher.Constraint("Vertical", 6),
    Sketcher.Constraint("Horizontal", 7),
    Sketcher.Constraint("Vertical", 8),
    Sketcher.Constraint("Horizontal", 9),
    Sketcher.Constraint("Vertical", 10),
    Sketcher.Constraint("Horizontal", 11),
    Sketcher.Constraint("Vertical", 12),
    Sketcher.Constraint("Horizontal", 13),
    Sketcher.Constraint("Symmetric", 1, 2, 2, 2, -1, 1),
    Sketcher.Constraint("Symmetric", 4, 2, 9, 2, -1),
    Sketcher.Constraint("Equal", 7, 0),
    Sketcher.Constraint("Equal", 3, 10),
    Sketcher.Constraint("DistanceX", 1, 2, 1, 1, Q("5 mm")),
    Sketcher.Constraint("DistanceX", 5, 1, 5, 2, Q("15 mm")),
    Sketcher.Constraint("DistanceX", 7, 1, 7, 2, Q("8 mm")),
    Sketcher.Constraint("DistanceX", 11, 1, 11, 2, Q("6 mm")),
    Sketcher.Constraint("DistanceY", 2, 2, 2, 1, Q("22 mm")),
    Sketcher.Constraint("DistanceY", 6, 2, 6, 1, Q("19 mm")),
    Sketcher.Constraint("DistanceX", -1, 1, 10, 2, Q("21 mm")),
    Sketcher.Constraint("DistanceY", 10, 2, -1, 1, Q("14 mm")),
])
pad8 = body.newObject("PartDesign::Pad", "Pad007")
pad8.Profile = sketch16
pad8.Length = 2

sketch17 = body.newObject("Sketcher::SketchObject", "Sketch016")
sketch17.AttachmentSupport = (doc.getObject("XZ_Plane"), [""])
sketch17.MapMode = "FlatFace"
sketch17.AttachmentOffset = App.Placement(V(0, 0, -5), App.Rotation())
sketch17.addGeometry([
    Part.LineSegment(V(34.75, 3, 0), V(34.75, 11, 0)),
    Part.LineSegment(V(34.75, 11, 0), V(45.25, 11, 0)),
    Part.LineSegment(V(45.25, 11, 0), V(45.25, 3, 0)),
    Part.LineSegment(V(45.25, 3, 0), V(34.75, 3, 0)),
    Part.LineSegment(V(34.75, -11, 0), V(34.75, -3, 0)),
    Part.LineSegment(V(34.75, -3, 0), V(45.25, -3, 0)),
    Part.LineSegment(V(45.25, -3, 0), V(45.25, -11, 0)),
    Part.LineSegment(V(45.25, -11, 0), V(34.75, -11, 0)),
], False)
sketch17.addConstraint([
    Sketcher.Constraint("Coincident", 0, 2, 1, 1),
    Sketcher.Constraint("Coincident", 1, 2, 2, 1),
    Sketcher.Constraint("Coincident", 2, 2, 3, 1),
    Sketcher.Constraint("Coincident", 3, 2, 0, 1),
    Sketcher.Constraint("Coincident", 4, 2, 5, 1),
    Sketcher.Constraint("Coincident", 5, 2, 6, 1),
    Sketcher.Constraint("Coincident", 6, 2, 7, 1),
    Sketcher.Constraint("Coincident", 7, 2, 4, 1),
    Sketcher.Constraint("Vertical", 0),
    Sketcher.Constraint("Horizontal", 1),
    Sketcher.Constraint("Vertical", 2),
    Sketcher.Constraint("Horizontal", 3),
    Sketcher.Constraint("Vertical", 4),
    Sketcher.Constraint("Horizontal", 5),
    Sketcher.Constraint("Vertical", 6),
    Sketcher.Constraint("Horizontal", 7),
    Sketcher.Constraint("Symmetric", 3, 2, 4, 2, -1),
    Sketcher.Constraint("Symmetric", 1, 2, 6, 2, -1),
    Sketcher.Constraint("DistanceY", 0, 1, 0, 2, Q("8 mm")),
    Sketcher.Constraint("DistanceX", 1, 1, 1, 2, Q("10.5 mm")),
    Sketcher.Constraint("DistanceY", -1, 1, 0, 2, Q("11 mm")),
    Sketcher.Constraint("DistanceX", -1, 1, 0, 2, Q("34.75 mm")),
])
pad9 = body.newObject("PartDesign::Pad", "Pad008")
pad9.Profile = sketch17
pad9.Length = 5

sketch18 = body.newObject("Sketcher::SketchObject", "Sketch017")
sketch18.AttachmentSupport = (doc.getObject("YZ_Plane"), [""])
sketch18.MapMode = "FlatFace"
sketch18.AttachmentOffset = App.Placement(V(0, 0, 34.75), App.Rotation())
sketch18.addGeometry([
    Part.LineSegment(V(5, -3, 0), V(5, -11, 0)),
    Part.LineSegment(V(5, -11, 0), V(0, -11, 0)),
    Part.LineSegment(V(0, -11, 0), V(0, 11, 0)),
    Part.LineSegment(V(0, 11, 0), V(5, 11, 0)),
    Part.LineSegment(V(5, 11, 0), V(5, 3, 0)),
    Part.LineSegment(V(5, 3, 0), V(20, 3, 0)),
    Part.LineSegment(V(20, 3, 0), V(20, -3, 0)),
    Part.LineSegment(V(20, -3, 0), V(5, -3, 0)),
], False)
sketch18.addConstraint([
    Sketcher.Constraint("Coincident", 0, 2, 1, 1),
    Sketcher.Constraint("Coincident", 1, 2, 2, 1),
    Sketcher.Constraint("Coincident", 2, 2, 3, 1),
    Sketcher.Constraint("Coincident", 3, 2, 4, 1),
    Sketcher.Constraint("Coincident", 4, 2, 5, 1),
    Sketcher.Constraint("Coincident", 5, 2, 6, 1),
    Sketcher.Constraint("Coincident", 6, 2, 7, 1),
    Sketcher.Constraint("Coincident", 7, 2, 0, 1),
    Sketcher.Constraint("Vertical", 0),
    Sketcher.Constraint("Horizontal", 1),
    Sketcher.Constraint("Vertical", 2),
    Sketcher.Constraint("Horizontal", 3),
    Sketcher.Constraint("Vertical", 4),
    Sketcher.Constraint("Horizontal", 5),
    Sketcher.Constraint("Vertical", 6),
    Sketcher.Constraint("Horizontal", 7),
    Sketcher.Constraint("Symmetric", 1, 2, 2, 2, -1, 1),
    Sketcher.Constraint("Symmetric", 4, 2, 7, 2, -1),
    Sketcher.Constraint("DistanceX", 1, 2, 1, 1, Q("5 mm")),
    Sketcher.Constraint("DistanceX", 5, 1, 5, 2, Q("15 mm")),
    Sketcher.Constraint("DistanceY", 0, 2, 0, 1, Q("8 mm")),
    Sketcher.Constraint("DistanceY", 2, 1, 2, 2, Q("22 mm")),
])
pocket9 = body.newObject("PartDesign::Pocket", "Pocket008")
pocket9.Profile = sketch18
pocket9.Length = 2
pocket9.Reversed = True

sketch19 = body.newObject("Sketcher::SketchObject", "Sketch018")
sketch19.AttachmentSupport = (doc.getObject("XZ_Plane"), [""])
sketch19.MapMode = "FlatFace"
sketch19.AttachmentOffset = App.Placement(V(0, 0, -5), App.Rotation())
sketch19.addGeometry([
    Part.LineSegment(V(42.705, -9.703147, 0), V(39.295, -9.703147, 0)),
    Part.LineSegment(V(39.295, -9.703147, 0), V(37.59, -6.75, 0)),
    Part.LineSegment(V(37.59, -6.75, 0), V(39.295, -3.796853, 0)),
    Part.LineSegment(V(39.295, -3.796853, 0), V(42.705, -3.796853, 0)),
    Part.LineSegment(V(42.705, -3.796853, 0), V(44.41, -6.75, 0)),
    Part.LineSegment(V(44.41, -6.75, 0), V(42.705, -9.703147, 0)),
    Part.LineSegment(V(39.295, 9.703147, 0), V(42.705, 9.703147, 0)),
    Part.LineSegment(V(42.705, 9.703147, 0), V(44.41, 6.75, 0)),
    Part.LineSegment(V(44.41, 6.75, 0), V(42.705, 3.796853, 0)),
    Part.LineSegment(V(42.705, 3.796853, 0), V(39.295, 3.796853, 0)),
    Part.LineSegment(V(39.295, 3.796853, 0), V(37.59, 6.75, 0)),
    Part.LineSegment(V(37.59, 6.75, 0), V(39.295, 9.703147, 0)),
], False)
sketch19.addConstraint([
    Sketcher.Constraint("Coincident", 0, 2, 1, 1),
    Sketcher.Constraint("Coincident", 1, 2, 2, 1),
    Sketcher.Constraint("Coincident", 2, 2, 3, 1),
    Sketcher.Constraint("Coincident", 3, 2, 4, 1),
    Sketcher.Constraint("Coincident", 4, 2, 5, 1),
    Sketcher.Constraint("Coincident", 5, 2, 0, 1),
    Sketcher.Constraint("Coincident", 6, 2, 7, 1),
    Sketcher.Constraint("Coincident", 7, 2, 8, 1),
    Sketcher.Constraint("Coincident", 8, 2, 9, 1),
    Sketcher.Constraint("Coincident", 9, 2, 10, 1),
    Sketcher.Constraint("Coincident", 10, 2, 11, 1),
    Sketcher.Constraint("Coincident", 11, 2, 6, 1),
    Sketcher.Constraint("Horizontal", 0),
    Sketcher.Constraint("Horizontal", 3),
    Sketcher.Constraint("Horizontal", 6),
    Sketcher.Constraint("Horizontal", 9),
    Sketcher.Constraint("Symmetric", 5, 2, 6, 2, -1),
    Sketcher.Constraint("Symmetric", 4, 2, 7, 2, -1),
    Sketcher.Constraint("Symmetric", 3, 2, 8, 2, -1),
    Sketcher.Constraint("Symmetric", 1, 2, 10, 2, -1),
    Sketcher.Constraint("Parallel", 1, 4),
    Sketcher.Constraint("Parallel", 2, 5),
    Sketcher.Constraint("Parallel", 4, 7),
    Sketcher.Constraint("Parallel", 7, 10),
    Sketcher.Constraint("Parallel", 8, 11),
    Sketcher.Constraint("Horizontal", 1, 2, 4, 2),
    Sketcher.Constraint("Vertical", 0, 2, 2, 2),
    Sketcher.Constraint("Angle", 1, Q("120 deg")),
    Sketcher.Constraint("DistanceX", 0, 2, 0, 1, Q("3.41 mm")),
    Sketcher.Constraint("DistanceY", 3, 2, 6, 2, Q("13.5 mm")),
    Sketcher.Constraint("Distance", 1, Q("3.41 mm")),
    Sketcher.Constraint("DistanceX", -1, 1, 1, 2, Q("37.59 mm")),
])
pocket10 = body.newObject("PartDesign::Pocket", "Pocket009")
pocket10.Profile = sketch19
pocket10.Length = 3.5
pocket10.Reversed = True

sketch20 = body.newObject("Sketcher::SketchObject", "Sketch019")
sketch20.AttachmentSupport = (doc.getObject("XZ_Plane"), [""])
sketch20.MapMode = "FlatFace"
sketch20.AttachmentOffset = App.Placement(V(0, 0, -1.5), App.Rotation())
sketch20.addGeometry(Part.Circle(V(41, 6.75, 0), V(0, 0, 1), 1.5), False)
sketch20.addConstraint([
    Sketcher.Constraint("Diameter", 0, Q("3 mm")),
    Sketcher.Constraint("DistanceX", -1, 1, 0, 3, Q("41 mm")),
    Sketcher.Constraint("DistanceY", -1, 1, 0, 3, Q("6.75 mm")),
])
pocket11 = body.newObject("PartDesign::Pocket", "Pocket010")
pocket11.Profile = sketch20
pocket11.Type = "UpToFirst"
pocket11.Reversed = True

sketch21 = body.newObject("Sketcher::SketchObject", "Sketch020")
sketch21.AttachmentSupport = (doc.getObject("XZ_Plane"), [""])
sketch21.MapMode = "FlatFace"
sketch21.AttachmentOffset = App.Placement(V(0, 0, -1.5), App.Rotation())
sketch21.addGeometry(Part.Circle(V(41, -6.75, 0), V(0, 0, 1), 1.5), False)
sketch21.addConstraint([
    Sketcher.Constraint("Diameter", 0, Q("3 mm")),
    Sketcher.Constraint("DistanceX", -1, 1, 0, 3, Q("41 mm")),
    Sketcher.Constraint("DistanceY", 0, 3, -1, 1, Q("6.75 mm")),
])
pocket12 = body.newObject("PartDesign::Pocket", "Pocket011")
pocket12.Profile = sketch21
pocket12.Type = "UpToFirst"
pocket12.Reversed = True

sketch22 = body.newObject("Sketcher::SketchObject", "Sketch021")
sketch22.AttachmentSupport = (doc.getObject("YZ_Plane"), [""])
sketch22.MapMode = "FlatFace"
sketch22.AttachmentOffset = App.Placement(V(0, 0, 28.25), App.Rotation())
sketch22.addGeometry([
    Part.LineSegment(V(27, -14, 0), V(21, -14, 0)),
    Part.LineSegment(V(21, -14, 0), V(21, -19, 0)),
    Part.LineSegment(V(21, -19, 0), V(27, -19, 0)),
    Part.LineSegment(V(27, -19, 0), V(27, -14, 0)),
], False)
sketch22.addConstraint([
    Sketcher.Constraint("Coincident", 0, 2, 1, 1),
    Sketcher.Constraint("Coincident", 1, 2, 2, 1),
    Sketcher.Constraint("Coincident", 2, 2, 3, 1),
    Sketcher.Constraint("Coincident", 3, 2, 0, 1),
    Sketcher.Constraint("Horizontal", 0),
    Sketcher.Constraint("Vertical", 1),
    Sketcher.Constraint("Horizontal", 2),
    Sketcher.Constraint("Vertical", 3),
    Sketcher.Constraint("DistanceX", 0, 2, 0, 1, Q("6 mm")),
    Sketcher.Constraint("DistanceY", 1, 2, 1, 1, Q("5 mm")),
    Sketcher.Constraint("DistanceX", -1, 1, 0, 2, Q("21 mm")),
    Sketcher.Constraint("DistanceY", 0, 2, -1, 1, Q("14 mm")),
])
pad10 = body.newObject("PartDesign::Pad", "Pad009")
pad10.Profile = sketch22
pad10.Length = 2

doc.recompute()
